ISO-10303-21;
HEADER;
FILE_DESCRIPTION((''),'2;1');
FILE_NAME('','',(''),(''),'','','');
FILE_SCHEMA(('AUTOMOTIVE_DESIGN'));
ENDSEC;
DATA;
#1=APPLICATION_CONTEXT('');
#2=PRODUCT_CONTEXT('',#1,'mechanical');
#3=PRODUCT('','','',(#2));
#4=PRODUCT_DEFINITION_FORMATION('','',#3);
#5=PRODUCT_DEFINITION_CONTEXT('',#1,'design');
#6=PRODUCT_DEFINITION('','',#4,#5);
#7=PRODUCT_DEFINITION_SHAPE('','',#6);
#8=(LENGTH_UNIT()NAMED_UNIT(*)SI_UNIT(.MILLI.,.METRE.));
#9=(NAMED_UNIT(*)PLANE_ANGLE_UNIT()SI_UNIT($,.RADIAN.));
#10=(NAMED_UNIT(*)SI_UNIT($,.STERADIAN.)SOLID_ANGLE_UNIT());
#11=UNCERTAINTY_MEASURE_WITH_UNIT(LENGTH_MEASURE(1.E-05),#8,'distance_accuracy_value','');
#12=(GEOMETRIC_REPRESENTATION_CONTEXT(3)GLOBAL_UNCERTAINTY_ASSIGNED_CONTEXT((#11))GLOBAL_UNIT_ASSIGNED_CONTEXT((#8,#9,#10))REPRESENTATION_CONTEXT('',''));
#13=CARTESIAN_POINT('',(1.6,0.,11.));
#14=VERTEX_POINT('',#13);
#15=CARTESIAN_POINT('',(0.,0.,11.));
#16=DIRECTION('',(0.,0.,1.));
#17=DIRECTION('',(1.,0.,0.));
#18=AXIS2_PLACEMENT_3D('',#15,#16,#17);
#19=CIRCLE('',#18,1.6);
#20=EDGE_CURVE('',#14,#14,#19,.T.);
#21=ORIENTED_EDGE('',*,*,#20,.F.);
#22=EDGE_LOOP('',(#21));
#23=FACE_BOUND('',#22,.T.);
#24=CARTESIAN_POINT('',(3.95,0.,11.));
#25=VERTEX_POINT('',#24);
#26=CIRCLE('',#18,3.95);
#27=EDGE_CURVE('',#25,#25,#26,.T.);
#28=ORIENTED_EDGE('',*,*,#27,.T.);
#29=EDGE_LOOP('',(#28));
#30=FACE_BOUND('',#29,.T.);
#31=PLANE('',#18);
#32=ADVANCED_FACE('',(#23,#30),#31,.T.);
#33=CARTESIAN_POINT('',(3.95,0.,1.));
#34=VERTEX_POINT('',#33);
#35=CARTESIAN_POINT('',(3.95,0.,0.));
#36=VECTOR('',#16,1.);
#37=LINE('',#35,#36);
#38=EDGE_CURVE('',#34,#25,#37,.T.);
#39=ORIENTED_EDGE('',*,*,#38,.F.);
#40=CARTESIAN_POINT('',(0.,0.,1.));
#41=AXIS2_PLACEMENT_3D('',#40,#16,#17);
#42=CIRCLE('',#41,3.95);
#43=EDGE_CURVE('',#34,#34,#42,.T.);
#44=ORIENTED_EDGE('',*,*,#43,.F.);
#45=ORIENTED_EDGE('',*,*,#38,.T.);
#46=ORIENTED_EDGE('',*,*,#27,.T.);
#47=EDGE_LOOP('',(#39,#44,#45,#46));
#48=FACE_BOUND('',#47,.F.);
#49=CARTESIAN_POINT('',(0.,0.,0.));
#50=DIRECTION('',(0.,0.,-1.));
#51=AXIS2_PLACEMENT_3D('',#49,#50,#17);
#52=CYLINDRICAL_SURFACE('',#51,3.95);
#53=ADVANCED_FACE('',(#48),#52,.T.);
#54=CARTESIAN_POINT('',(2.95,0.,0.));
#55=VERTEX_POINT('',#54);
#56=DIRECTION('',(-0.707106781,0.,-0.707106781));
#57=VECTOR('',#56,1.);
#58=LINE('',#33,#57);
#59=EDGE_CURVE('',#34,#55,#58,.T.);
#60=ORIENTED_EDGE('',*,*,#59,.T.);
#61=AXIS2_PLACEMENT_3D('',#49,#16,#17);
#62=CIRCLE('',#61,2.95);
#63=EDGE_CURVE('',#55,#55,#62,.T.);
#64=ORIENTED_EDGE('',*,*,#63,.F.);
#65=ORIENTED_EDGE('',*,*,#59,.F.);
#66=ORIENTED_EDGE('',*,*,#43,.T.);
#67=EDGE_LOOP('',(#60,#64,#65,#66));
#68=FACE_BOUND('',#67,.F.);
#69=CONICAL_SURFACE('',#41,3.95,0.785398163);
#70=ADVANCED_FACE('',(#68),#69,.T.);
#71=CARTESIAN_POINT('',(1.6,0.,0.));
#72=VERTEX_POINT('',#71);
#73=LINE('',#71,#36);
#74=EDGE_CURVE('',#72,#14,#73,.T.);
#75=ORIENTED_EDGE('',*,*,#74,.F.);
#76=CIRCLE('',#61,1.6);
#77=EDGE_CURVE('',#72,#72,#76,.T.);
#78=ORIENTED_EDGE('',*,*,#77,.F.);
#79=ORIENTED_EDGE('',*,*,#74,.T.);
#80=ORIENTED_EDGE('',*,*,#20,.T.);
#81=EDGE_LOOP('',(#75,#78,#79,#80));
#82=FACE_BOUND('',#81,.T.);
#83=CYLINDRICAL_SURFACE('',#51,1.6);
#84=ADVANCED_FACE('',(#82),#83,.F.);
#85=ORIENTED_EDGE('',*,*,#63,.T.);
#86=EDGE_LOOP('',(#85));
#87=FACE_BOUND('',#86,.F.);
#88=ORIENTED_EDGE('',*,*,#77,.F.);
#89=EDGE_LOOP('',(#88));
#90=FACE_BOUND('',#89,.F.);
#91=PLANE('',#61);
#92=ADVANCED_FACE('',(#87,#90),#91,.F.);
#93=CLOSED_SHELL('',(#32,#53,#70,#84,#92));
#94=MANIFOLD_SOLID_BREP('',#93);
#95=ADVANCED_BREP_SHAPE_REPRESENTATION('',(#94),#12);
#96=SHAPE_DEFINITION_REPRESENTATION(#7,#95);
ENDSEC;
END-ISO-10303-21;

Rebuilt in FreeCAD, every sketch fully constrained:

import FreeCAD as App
import Part
import Sketcher


def edges_at(feature, points):
    """Names of the edges that pass closest to the given points."""
    edges = feature.Shape.Edges
    near = lambda p: min(range(len(edges)), key=lambda i: edges[i].distToShape(Part.Vertex(*p))[0])
    return sorted({f"Edge{near(p) + 1}" for p in points})

doc = App.newDocument("Part")
body = doc.addObject("PartDesign::Body", "Body")

sketch1 = doc.addObject("Sketcher::SketchObject", "Sketch")
body.addObject(sketch1)
sketch1.AttachmentSupport = (doc.XY_Plane, [""])
sketch1.MapMode = "FlatFace"
sketch1.addGeometry(Part.Circle(App.Vector(0, 0, 0), App.Vector(0, 0, 1), 4), False)
sketch1.addGeometry(Part.Circle(App.Vector(0, 0, 0), App.Vector(0, 0, 1), 1.6), False)
sketch1.addConstraint(Sketcher.Constraint("Coincident", 0, 3, -1, 1))
sketch1.addConstraint(Sketcher.Constraint("Coincident", 1, 3, -1, 1))
sketch1.addConstraint(Sketcher.Constraint("Diameter", 0, 7.9))
sketch1.addConstraint(Sketcher.Constraint("Diameter", 1, 3.2))
pad1 = doc.addObject("PartDesign::Pad", "Pad")
body.addObject(pad1)
pad1.Profile = sketch1
pad1.Length = 11
doc.recompute()

chamfer = doc.addObject("PartDesign::Chamfer", "Chamfer")
body.addObject(chamfer)
chamfer.Base = (pad1, edges_at(pad1, [(-3.95, 0, 0)]))
chamfer.Size = 1

doc.recompute()
